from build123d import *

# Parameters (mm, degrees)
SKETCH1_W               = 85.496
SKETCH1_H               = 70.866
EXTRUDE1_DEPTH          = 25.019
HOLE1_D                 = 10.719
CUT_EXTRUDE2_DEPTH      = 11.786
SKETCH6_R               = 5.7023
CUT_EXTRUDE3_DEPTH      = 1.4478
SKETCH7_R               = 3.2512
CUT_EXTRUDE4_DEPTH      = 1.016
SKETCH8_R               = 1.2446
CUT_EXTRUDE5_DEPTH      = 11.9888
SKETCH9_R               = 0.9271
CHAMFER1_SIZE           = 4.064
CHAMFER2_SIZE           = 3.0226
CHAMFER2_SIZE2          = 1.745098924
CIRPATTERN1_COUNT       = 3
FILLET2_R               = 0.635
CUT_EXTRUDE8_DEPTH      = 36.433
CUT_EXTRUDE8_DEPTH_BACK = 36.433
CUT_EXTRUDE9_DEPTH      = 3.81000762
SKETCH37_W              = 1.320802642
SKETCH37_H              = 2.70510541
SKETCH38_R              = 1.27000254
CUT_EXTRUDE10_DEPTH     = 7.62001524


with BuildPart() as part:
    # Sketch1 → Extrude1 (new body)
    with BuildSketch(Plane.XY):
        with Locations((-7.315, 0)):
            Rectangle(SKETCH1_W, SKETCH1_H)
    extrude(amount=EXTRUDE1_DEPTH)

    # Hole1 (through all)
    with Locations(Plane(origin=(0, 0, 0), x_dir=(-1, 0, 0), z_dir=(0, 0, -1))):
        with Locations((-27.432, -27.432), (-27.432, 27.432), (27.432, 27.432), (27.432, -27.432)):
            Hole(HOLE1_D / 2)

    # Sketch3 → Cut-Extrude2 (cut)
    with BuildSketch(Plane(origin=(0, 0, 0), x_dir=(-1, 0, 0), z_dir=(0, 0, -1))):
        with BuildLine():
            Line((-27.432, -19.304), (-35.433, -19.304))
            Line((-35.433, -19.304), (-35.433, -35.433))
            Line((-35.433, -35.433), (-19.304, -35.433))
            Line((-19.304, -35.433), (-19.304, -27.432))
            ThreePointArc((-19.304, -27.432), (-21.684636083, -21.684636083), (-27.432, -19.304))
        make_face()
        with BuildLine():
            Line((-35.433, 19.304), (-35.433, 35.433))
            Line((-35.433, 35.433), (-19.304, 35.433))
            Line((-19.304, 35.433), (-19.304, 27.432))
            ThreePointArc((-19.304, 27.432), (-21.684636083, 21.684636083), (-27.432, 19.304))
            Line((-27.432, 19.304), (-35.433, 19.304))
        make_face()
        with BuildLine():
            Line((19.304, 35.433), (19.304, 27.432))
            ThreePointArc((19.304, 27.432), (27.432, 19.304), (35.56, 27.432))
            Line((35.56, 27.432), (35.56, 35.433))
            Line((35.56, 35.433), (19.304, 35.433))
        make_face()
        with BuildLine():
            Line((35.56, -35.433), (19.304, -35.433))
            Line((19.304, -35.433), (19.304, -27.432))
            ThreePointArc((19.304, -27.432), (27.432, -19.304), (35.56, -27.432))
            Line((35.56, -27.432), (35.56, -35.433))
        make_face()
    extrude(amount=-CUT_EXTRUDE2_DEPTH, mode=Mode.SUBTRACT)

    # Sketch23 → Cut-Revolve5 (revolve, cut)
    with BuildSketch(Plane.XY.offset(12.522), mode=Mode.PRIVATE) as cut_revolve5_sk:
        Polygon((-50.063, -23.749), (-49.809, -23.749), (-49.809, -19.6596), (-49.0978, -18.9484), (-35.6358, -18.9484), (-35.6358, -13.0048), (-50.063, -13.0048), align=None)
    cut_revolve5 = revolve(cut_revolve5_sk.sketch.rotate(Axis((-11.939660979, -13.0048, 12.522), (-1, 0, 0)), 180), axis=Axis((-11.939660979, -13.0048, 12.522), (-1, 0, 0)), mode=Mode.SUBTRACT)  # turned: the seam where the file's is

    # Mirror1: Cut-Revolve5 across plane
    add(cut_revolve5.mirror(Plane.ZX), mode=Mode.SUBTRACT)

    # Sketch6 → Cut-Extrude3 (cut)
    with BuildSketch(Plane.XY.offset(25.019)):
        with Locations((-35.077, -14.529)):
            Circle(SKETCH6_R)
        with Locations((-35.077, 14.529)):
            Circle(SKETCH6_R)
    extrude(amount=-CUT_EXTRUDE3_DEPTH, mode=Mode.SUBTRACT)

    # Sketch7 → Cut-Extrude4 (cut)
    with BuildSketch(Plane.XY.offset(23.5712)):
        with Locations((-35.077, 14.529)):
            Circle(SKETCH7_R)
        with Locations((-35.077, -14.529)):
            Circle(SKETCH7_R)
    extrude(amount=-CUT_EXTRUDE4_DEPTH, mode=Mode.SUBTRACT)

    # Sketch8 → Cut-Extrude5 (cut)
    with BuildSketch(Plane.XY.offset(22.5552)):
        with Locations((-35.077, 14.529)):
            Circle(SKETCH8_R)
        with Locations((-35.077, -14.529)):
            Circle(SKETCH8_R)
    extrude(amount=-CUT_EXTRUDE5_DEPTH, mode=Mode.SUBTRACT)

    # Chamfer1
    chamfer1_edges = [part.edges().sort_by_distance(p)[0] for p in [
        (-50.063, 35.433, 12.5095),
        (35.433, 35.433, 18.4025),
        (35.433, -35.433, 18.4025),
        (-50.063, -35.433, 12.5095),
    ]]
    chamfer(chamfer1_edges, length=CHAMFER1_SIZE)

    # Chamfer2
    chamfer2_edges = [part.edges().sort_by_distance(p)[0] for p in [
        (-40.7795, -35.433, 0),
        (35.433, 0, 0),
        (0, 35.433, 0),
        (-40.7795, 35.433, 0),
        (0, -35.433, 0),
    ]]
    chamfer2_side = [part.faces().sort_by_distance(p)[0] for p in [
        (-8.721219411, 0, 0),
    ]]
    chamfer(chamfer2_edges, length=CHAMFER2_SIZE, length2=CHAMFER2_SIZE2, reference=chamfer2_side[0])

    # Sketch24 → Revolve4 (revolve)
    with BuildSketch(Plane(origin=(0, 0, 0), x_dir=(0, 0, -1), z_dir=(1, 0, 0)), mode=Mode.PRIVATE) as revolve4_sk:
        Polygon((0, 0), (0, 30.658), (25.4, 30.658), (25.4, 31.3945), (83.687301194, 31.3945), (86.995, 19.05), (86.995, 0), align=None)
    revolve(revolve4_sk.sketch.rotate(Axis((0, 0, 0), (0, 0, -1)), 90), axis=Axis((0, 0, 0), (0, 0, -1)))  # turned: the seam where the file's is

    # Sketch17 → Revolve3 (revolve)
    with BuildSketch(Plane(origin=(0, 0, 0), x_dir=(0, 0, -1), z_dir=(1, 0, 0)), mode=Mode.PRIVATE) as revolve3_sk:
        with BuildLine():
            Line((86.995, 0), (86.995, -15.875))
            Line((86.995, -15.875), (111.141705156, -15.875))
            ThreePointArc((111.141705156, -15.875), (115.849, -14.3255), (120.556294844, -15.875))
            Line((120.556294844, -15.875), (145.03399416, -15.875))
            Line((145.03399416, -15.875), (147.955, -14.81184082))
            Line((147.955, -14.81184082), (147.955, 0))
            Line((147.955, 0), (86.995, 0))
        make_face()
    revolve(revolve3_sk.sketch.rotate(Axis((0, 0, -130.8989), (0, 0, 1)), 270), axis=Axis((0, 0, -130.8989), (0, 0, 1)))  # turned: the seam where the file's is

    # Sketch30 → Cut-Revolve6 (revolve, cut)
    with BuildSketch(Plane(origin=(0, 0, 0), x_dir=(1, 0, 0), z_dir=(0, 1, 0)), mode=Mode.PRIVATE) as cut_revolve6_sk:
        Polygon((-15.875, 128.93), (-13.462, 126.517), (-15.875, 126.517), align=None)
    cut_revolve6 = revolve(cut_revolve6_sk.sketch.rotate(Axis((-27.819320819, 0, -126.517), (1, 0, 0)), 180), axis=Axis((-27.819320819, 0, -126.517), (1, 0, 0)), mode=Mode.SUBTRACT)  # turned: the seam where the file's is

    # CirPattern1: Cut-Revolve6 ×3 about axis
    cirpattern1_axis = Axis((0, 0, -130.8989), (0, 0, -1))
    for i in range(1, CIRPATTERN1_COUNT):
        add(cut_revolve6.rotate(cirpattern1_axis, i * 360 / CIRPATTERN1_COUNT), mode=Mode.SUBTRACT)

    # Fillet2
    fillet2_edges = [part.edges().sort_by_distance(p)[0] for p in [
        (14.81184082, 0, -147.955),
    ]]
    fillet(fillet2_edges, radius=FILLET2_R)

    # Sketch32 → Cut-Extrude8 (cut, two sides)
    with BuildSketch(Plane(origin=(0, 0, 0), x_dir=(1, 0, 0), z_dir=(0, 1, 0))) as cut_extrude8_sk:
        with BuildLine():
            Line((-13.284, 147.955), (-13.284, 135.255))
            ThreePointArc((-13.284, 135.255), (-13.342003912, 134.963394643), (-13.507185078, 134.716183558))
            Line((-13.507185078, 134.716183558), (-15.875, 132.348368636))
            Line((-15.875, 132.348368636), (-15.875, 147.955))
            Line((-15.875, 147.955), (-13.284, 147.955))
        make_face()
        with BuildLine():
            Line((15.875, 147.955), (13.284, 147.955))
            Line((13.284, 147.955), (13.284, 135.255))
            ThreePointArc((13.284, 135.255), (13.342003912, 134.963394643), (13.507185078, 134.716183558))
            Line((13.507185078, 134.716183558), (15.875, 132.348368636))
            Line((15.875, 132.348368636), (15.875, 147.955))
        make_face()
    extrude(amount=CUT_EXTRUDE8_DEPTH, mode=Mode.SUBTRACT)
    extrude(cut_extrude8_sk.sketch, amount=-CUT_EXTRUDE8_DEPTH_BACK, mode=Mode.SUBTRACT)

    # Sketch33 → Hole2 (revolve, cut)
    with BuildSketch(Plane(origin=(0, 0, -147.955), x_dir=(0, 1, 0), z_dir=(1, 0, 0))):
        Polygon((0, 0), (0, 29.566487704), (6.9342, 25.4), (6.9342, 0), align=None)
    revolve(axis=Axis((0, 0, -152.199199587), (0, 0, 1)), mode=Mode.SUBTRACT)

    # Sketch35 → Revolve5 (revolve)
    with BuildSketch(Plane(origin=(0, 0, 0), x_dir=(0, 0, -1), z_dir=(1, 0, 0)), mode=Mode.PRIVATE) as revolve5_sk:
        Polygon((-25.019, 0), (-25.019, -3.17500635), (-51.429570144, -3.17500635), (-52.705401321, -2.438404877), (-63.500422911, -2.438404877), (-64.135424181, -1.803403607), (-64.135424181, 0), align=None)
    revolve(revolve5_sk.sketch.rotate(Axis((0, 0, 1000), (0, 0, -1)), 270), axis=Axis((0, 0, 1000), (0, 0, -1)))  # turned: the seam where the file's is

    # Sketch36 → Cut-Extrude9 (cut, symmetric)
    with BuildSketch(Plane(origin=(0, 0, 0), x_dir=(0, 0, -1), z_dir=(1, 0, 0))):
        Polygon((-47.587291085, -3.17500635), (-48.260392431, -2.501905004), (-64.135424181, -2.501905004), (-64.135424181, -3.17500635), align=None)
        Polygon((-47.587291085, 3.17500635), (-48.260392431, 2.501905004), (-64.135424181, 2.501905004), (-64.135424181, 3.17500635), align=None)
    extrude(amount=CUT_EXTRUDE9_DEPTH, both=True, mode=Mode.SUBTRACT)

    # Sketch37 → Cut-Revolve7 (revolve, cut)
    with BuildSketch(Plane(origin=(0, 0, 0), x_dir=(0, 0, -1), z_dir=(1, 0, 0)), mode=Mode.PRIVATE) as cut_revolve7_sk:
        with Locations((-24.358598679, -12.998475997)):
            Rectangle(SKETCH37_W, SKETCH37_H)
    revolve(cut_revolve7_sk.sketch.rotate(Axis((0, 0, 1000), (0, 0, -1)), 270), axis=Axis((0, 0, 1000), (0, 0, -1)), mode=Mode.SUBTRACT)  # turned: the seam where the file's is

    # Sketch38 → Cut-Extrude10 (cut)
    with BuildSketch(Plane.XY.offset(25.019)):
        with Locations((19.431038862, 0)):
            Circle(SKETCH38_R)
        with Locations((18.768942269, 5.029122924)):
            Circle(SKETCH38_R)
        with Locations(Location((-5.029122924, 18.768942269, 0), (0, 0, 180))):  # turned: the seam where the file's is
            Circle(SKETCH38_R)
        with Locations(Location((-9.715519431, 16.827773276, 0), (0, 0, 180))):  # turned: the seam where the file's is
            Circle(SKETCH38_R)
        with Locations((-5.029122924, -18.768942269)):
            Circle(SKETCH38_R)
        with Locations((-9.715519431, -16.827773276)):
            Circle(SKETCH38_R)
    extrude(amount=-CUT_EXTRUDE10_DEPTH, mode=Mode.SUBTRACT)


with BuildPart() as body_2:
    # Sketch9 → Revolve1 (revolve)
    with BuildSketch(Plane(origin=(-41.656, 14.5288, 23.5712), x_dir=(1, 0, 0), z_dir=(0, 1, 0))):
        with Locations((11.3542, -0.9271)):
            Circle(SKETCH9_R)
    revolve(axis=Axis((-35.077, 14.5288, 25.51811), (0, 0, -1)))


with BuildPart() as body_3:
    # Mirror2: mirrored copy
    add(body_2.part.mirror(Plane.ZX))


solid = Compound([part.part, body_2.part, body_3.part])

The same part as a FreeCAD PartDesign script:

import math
import FreeCAD as App
import Part
import Sketcher
Q = App.Units.Quantity


def edges_at(feature, points):
    """Names of the edges that pass closest to the given points."""
    edges = feature.Shape.Edges
    near = lambda p: min(range(len(edges)), key=lambda i: edges[i].distToShape(Part.Vertex(*p))[0])
    return sorted({f"Edge{near(p) + 1}" for p in points})

doc = App.newDocument("Part")
params = doc.addObject("Spreadsheet::Sheet", "Params")
for row, (alias, value) in enumerate([
    ("sketch1_height", "2.79 in"),
    ("pad1_length", "0.985 in"),
    ("hole_diameter", "10.719 mm"),
    ("sketch3_radius", "0.32 in"),
    ("sketch3_width", "0.315 in"),
    ("pocket1_length", "11.786 mm"),
    ("sketch4_width", "0.01 in"),
    ("sketch4_width2", "0.53 in"),
    ("sketch4_width3", "0.568 in"),
    ("sketch4_height", "0.161 in"),
    ("sketch4_height2", "0.234 in"),
    ("groove_angle", "360 deg"),
    ("sketch5_diameter", "0.449 in"),
    ("pocket2_length", "0.057 in"),
    ("sketch6_diameter", "0.256 in"),
    ("pocket3_length", "0.04 in"),
    ("sketch7_diameter", "0.098 in"),
    ("pocket4_length", "0.472 in"),
    ("chamfer_size", "0.16 in"),
    ("chamfer2_size", "0.119 in"),
    ("chamfer2_size2", "1.745099 mm"),
    ("sketch8_height", "1 in"),
    ("sketch8_width", "0.75 in"),
    ("sketch8_height2", "3.425 in"),
    ("revolution_angle", "360 deg"),
    ("sketch9_height", "2.4 in"),
    ("sketch9_width", "0.625 in"),
    ("revolution2_angle", "360 deg"),
    ("sketch10_width", "0.095 in"),
    ("groove2_angle", "360 deg"),
    ("fillet_radius", "0.025 in"),
    ("sketch11_radius", "0.0300001 in"),
    ("sketch11_height", "0.5 in"),
    ("sketch12_height", "1 in"),
    ("sketch12_width", "0.273 in"),
    ("groove3_angle", "360 deg"),
    ("sketch13_width", "0.0710001 in"),
    ("sketch13_length", "0.0580001 in"),
    ("revolution3_angle", "360 deg"),
    ("pocket6_length", "7.620015 mm"),
    ("sketch15_height", "0.0520001 in"),
    ("groove4_angle", "360 deg"),
    ("sketch16_diameter", "0.1000002 in"),
    ("pocket7_length", "7.620015 mm"),
    ("sketch17_diameter", "0.073 in"),
    ("revolution4_angle", "360 deg"),
], start=1):
    params.set(f"A{row}", alias)
    params.set(f"B{row}", "=" + value)
    params.setAlias(f"B{row}", alias)

body = doc.addObject("PartDesign::Body", "Body")

# Sketch on XY plane
sketch1 = body.newObject("Sketcher::SketchObject", "Sketch")
sketch1.AttachmentSupport = (doc.getObject("XY_Plane"), [""])
sketch1.MapMode = "FlatFace"
sketch1.addGeometry([
    Part.LineSegment(App.Vector(-50.063, 35.433, 0), App.Vector(-50.063, -35.433, 0)),
    Part.LineSegment(App.Vector(-50.063, -35.433, 0), App.Vector(35.433, -35.433, 0)),
    Part.LineSegment(App.Vector(35.433, -35.433, 0), App.Vector(35.433, 35.433, 0)),
    Part.LineSegment(App.Vector(35.433, 35.433, 0), App.Vector(-50.063, 35.433, 0)),
], False)
sketch1.addConstraint([
    Sketcher.Constraint("Coincident", 0, 2, 1, 1),
    Sketcher.Constraint("Coincident", 1, 2, 2, 1),
    Sketcher.Constraint("Coincident", 2, 2, 3, 1),
    Sketcher.Constraint("Coincident", 3, 2, 0, 1),
    Sketcher.Constraint("Vertical", 0),
    Sketcher.Constraint("Horizontal", 1),
    Sketcher.Constraint("Vertical", 2),
    Sketcher.Constraint("Horizontal", 3),
    Sketcher.Constraint("DistanceY", 0, 2, 0, 1, Q("2.79 in")),
    Sketcher.Constraint("DistanceY", 0, 2, -1, 1, Q("1.395 in")),
    Sketcher.Constraint("DistanceX", -1, 1, 1, 2, Q("1.395 in")),
    Sketcher.Constraint("DistanceX", 1, 1, 1, 2, 85.496),
])
sketch1.setExpression("Constraints[8]", "Params.sketch1_height")
pad1 = body.newObject("PartDesign::Pad", "Pad")
pad1.Profile = sketch1
pad1.setExpression("Length", "Params.pad1_length")

# Sketch on XY plane
sketch2 = body.newObject("Sketcher::SketchObject", "Sketch001")
sketch2.AttachmentSupport = (doc.getObject("XY_Plane"), [""])
sketch2.MapMode = "FlatFace"
sketch2.addGeometry([
    Part.Circle(App.Vector(27.432, -27.432, 0), App.Vector(0, 0, 1), 5.3595),
    Part.Circle(App.Vector(27.432, 27.432, 0), App.Vector(0, 0, 1), 5.3595),
    Part.Circle(App.Vector(-27.432, 27.432, 0), App.Vector(0, 0, 1), 5.3595),
    Part.Circle(App.Vector(-27.432, -27.432, 0), App.Vector(0, 0, 1), 5.3595),
], False)
sketch2.addConstraint([
    Sketcher.Constraint("Equal", 0, 1),
    Sketcher.Constraint("Equal", 1, 2),
    Sketcher.Constraint("Equal", 2, 3),
    Sketcher.Constraint("Symmetric", 0, 3, 2, 3, -1, 1),
    Sketcher.Constraint("Symmetric", 1, 3, 3, 3, -1, 1),
    Sketcher.Constraint("Symmetric", 1, 3, 2, 3, -2),
    Sketcher.Constraint("Diameter", 0, 10.719),
    Sketcher.Constraint("DistanceX", -1, 1, 0, 3, Q("1.08 in")),
    Sketcher.Constraint("DistanceY", 0, 3, -1, 1, Q("1.08 in")),
])
doc.recompute()
hole = body.newObject("PartDesign::Hole", "Hole")
hole.Profile = sketch2
hole.ThreadType = "None"
hole.setExpression("Diameter", "Params.hole_diameter")
hole.DepthType = "ThroughAll"
hole.Reversed = True

# Sketch on XY plane
sketch3 = body.newObject("Sketcher::SketchObject", "Sketch002")
sketch3.AttachmentSupport = (doc.getObject("XY_Plane"), [""])
sketch3.MapMode = "FlatFace"
sketch3.addGeometry([
    Part.LineSegment(App.Vector(27.432, -19.304, 0), App.Vector(35.433, -19.304, 0)),  # 0
    Part.LineSegment(App.Vector(35.433, -19.304, 0), App.Vector(35.433, -35.433, 0)),  # 1
    Part.LineSegment(App.Vector(35.433, -35.433, 0), App.Vector(19.304, -35.433, 0)),  # 2
    Part.LineSegment(App.Vector(19.304, -35.433, 0), App.Vector(19.304, -27.432, 0)),  # 3
    Part.ArcOfCircle(Part.Circle(App.Vector(27.432, -27.432, 0), App.Vector(0, 0, 1), 8.128), math.radians(90), math.radians(180)),  # 4
    Part.LineSegment(App.Vector(35.433, 35.433, 0), App.Vector(35.433, 19.304, 0)),  # 5
    Part.LineSegment(App.Vector(35.433, 19.304, 0), App.Vector(27.432, 19.304, 0)),  # 6
    Part.ArcOfCircle(Part.Circle(App.Vector(27.432, 27.432, 0), App.Vector(0, 0, 1), 8.128), math.radians(-180), math.radians(-90)),  # 7
    Part.LineSegment(App.Vector(19.304, 27.432, 0), App.Vector(19.304, 35.433, 0)),  # 8
    Part.LineSegment(App.Vector(19.304, 35.433, 0), App.Vector(35.433, 35.433, 0)),  # 9
    Part.LineSegment(App.Vector(-19.304, 35.433, 0), App.Vector(-19.304, 27.432, 0)),  # 10
    Part.ArcOfCircle(Part.Circle(App.Vector(-27.432, 27.432, 0), App.Vector(0, 0, 1), 8.128), math.radians(180), math.radians(360)),  # 11
    Part.LineSegment(App.Vector(-35.56, 27.432, 0), App.Vector(-35.56, 35.433, 0)),  # 12
    Part.LineSegment(App.Vector(-35.56, 35.433, 0), App.Vector(-19.304, 35.433, 0)),  # 13
    Part.LineSegment(App.Vector(-19.304, -35.433, 0), App.Vector(-35.56, -35.433, 0)),  # 14
    Part.LineSegment(App.Vector(-35.56, -35.433, 0), App.Vector(-35.56, -27.432, 0)),  # 15
    Part.ArcOfCircle(Part.Circle(App.Vector(-27.432, -27.432, 0), App.Vector(0, 0, 1), 8.128), math.radians(0), math.radians(180)),  # 16
    Part.LineSegment(App.Vector(-19.304, -27.432, 0), App.Vector(-19.304, -35.433, 0)),  # 17
], False)
sketch3.addConstraint([
    Sketcher.Constraint("Coincident", 0, 2, 1, 1),
    Sketcher.Constraint("Coincident", 1, 2, 2, 1),
    Sketcher.Constraint("Coincident", 2, 2, 3, 1),
    Sketcher.Constraint("Tangent", 3, 2, 4, 2),
    Sketcher.Constraint("Tangent", 4, 1, 0, 1),
    Sketcher.Constraint("Coincident", 5, 2, 6, 1),
    Sketcher.Constraint("Tangent", 6, 2, 7, 2),
    Sketcher.Constraint("Tangent", 7, 1, 8, 1),
    Sketcher.Constraint("Coincident", 8, 2, 9, 1),
    Sketcher.Constraint("Coincident", 9, 2, 5, 1),
    Sketcher.Constraint("Tangent", 10, 2, 11, 2),
    Sketcher.Constraint("Tangent", 11, 1, 12, 1),
    Sketcher.Constraint("Coincident", 12, 2, 13, 1),
    Sketcher.Constraint("Coincident", 13, 2, 10, 1),
    Sketcher.Constraint("Coincident", 14, 2, 15, 1),
    Sketcher.Constraint("Tangent", 15, 2, 16, 2),
    Sketcher.Constraint("Tangent", 16, 1, 17, 1),
    Sketcher.Constraint("Coincident", 17, 2, 14, 1),
    Sketcher.Constraint("Horizontal", 0),
    Sketcher.Constraint("Vertical", 1),
    Sketcher.Constraint("Horizontal", 2),
    Sketcher.Constraint("Vertical", 3),
    Sketcher.Constraint("Vertical", 5),
    Sketcher.Constraint("Horizontal", 6),
    Sketcher.Constraint("Vertical", 8),
    Sketcher.Constraint("Horizontal", 9),
    Sketcher.Constraint("Vertical", 10),
    Sketcher.Constraint("Vertical", 12),
    Sketcher.Constraint("Horizontal", 13),
    Sketcher.Constraint("Horizontal", 14),
    Sketcher.Constraint("Vertical", 15),
    Sketcher.Constraint("Vertical", 17),
    Sketcher.Constraint("Equal", 4, 7),
    Sketcher.Constraint("Equal", 7, 11),
    Sketcher.Constraint("Equal", 11, 16),
    Sketcher.Constraint("Symmetric", 4, 3, 11, 3, -1, 1),
    Sketcher.Constraint("Symmetric", 7, 3, 16, 3, -1, 1),
    Sketcher.Constraint("Symmetric", 7, 3, 11, 3, -2),
    Sketcher.Constraint("Symmetric", 1, 2, 9, 2, -1),
    Sketcher.Constraint("Horizontal", 9, 2, 12, 2),
    Sketcher.Constraint("Horizontal", 2, 2, 14, 2),
    Sketcher.Constraint("Equal", 9, 1),
    Sketcher.Constraint("Radius", 4, Q("0.32 in")),
    Sketcher.Constraint("DistanceX", 11, 1, -1, 1, Q("1.4 in")),
    Sketcher.Constraint("DistanceX", 0, 1, 0, 2, Q("0.315 in")),
    Sketcher.Constraint("DistanceY", 4, 3, -1, 1, Q("1.08 in")),
])
sketch3.setExpression("Constraints[42]", "Params.sketch3_radius")
sketch3.setExpression("Constraints[44]", "Params.sketch3_width")
pocket1 = body.newObject("PartDesign::Pocket", "Pocket")
pocket1.Profile = sketch3
pocket1.setExpression("Length", "Params.pocket1_length")
pocket1.Reversed = True

# Sketch on XY plane
sketch4 = body.newObject("Sketcher::SketchObject", "Sketch003")
sketch4.AttachmentSupport = (doc.getObject("XY_Plane"), [""])
sketch4.MapMode = "FlatFace"
sketch4.AttachmentOffset = App.Placement(App.Vector(0, 0, 12.522), App.Rotation())
sketch4.addGeometry([
    Part.LineSegment(App.Vector(-50.063, -23.749, 0), App.Vector(-49.809, -23.749, 0)),  # 0
    Part.LineSegment(App.Vector(-49.809, -23.749, 0), App.Vector(-49.809, -19.6596, 0)),  # 1
    Part.LineSegment(App.Vector(-49.809, -19.6596, 0), App.Vector(-49.0978, -18.9484, 0)),  # 2
    Part.LineSegment(App.Vector(-49.0978, -18.9484, 0), App.Vector(-35.6358, -18.9484, 0)),  # 3
    Part.LineSegment(App.Vector(-35.6358, -18.9484, 0), App.Vector(-35.6358, -13.0048, 0)),  # 4
    Part.LineSegment(App.Vector(-35.6358, -13.0048, 0), App.Vector(-50.063, -13.0048, 0)),  # 5
    Part.LineSegment(App.Vector(-50.063, -13.0048, 0), App.Vector(-50.063, -23.749, 0)),  # 6
], False)
sketch4.addGeometry(Part.LineSegment(App.Vector(-35.6358, -13.0048, 0), App.Vector(-50.063, -13.0048, 0)), True)  # axis
sketch4.addConstraint([
    Sketcher.Constraint("Coincident", 0, 2, 1, 1),
    Sketcher.Constraint("Coincident", 1, 2, 2, 1),
    Sketcher.Constraint("Coincident", 2, 2, 3, 1),
    Sketcher.Constraint("Coincident", 3, 2, 4, 1),
    Sketcher.Constraint("Coincident", 4, 2, 5, 1),
    Sketcher.Constraint("Coincident", 5, 2, 6, 1),
    Sketcher.Constraint("Coincident", 6, 2, 0, 1),
    Sketcher.Constraint("Horizontal", 0),
    Sketcher.Constraint("Vertical", 1),
    Sketcher.Constraint("Horizontal", 3),
    Sketcher.Constraint("Vertical", 4),
    Sketcher.Constraint("Horizontal", 5),
    Sketcher.Constraint("Vertical", 6),
    Sketcher.Constraint("Horizontal", 7),
    Sketcher.Constraint("Coincident", 7, 1, 4, 2),
    Sketcher.Constraint("Vertical", 6, 2, 7, 2),
    Sketcher.Constraint("Angle", 2, Q("45 deg")),
    Sketcher.Constraint("DistanceX", 0, 1, 0, 2, Q("0.01 in")),
    Sketcher.Constraint("DistanceX", 3, 1, 3, 2, Q("0.53 in")),
    Sketcher.Constraint("DistanceX", 5, 2, 5, 1, Q("0.568 in")),
    Sketcher.Constraint("DistanceY", 1, 1, 1, 2, Q("0.161 in")),
    Sketcher.Constraint("DistanceY", 4, 1, 4, 2, Q("0.234 in")),
    Sketcher.Constraint("DistanceY", 0, 2, -1, 1, Q("0.935 in")),
    Sketcher.Constraint("DistanceX", 0, 2, -1, 1, 49.809),
])
sketch4.setExpression("Constraints[17]", "Params.sketch4_width")
sketch4.setExpression("Constraints[18]", "Params.sketch4_width2")
sketch4.setExpression("Constraints[19]", "Params.sketch4_width3")
sketch4.setExpression("Constraints[20]", "Params.sketch4_height")
sketch4.setExpression("Constraints[21]", "Params.sketch4_height2")
groove = body.newObject("PartDesign::Groove", "Groove")
groove.Profile = sketch4
groove.ReferenceAxis = (sketch4, ["Axis0"])
groove.setExpression("Angle", "Params.groove_angle")
doc.recompute()

mirrored = body.newObject("PartDesign::Mirrored", "Mirrored")
mirrored.Originals = [groove]
mirrored.MirrorPlane = (doc.getObject("XZ_Plane"), [""])
body.Tip = mirrored

# Sketch on XY plane
sketch5 = body.newObject("Sketcher::SketchObject", "Sketch004")
sketch5.AttachmentSupport = (doc.getObject("XY_Plane"), [""])
sketch5.MapMode = "FlatFace"
sketch5.AttachmentOffset = App.Placement(App.Vector(0, 0, 0.985 * 25.4), App.Rotation())
sketch5.addGeometry([
    Part.Circle(App.Vector(-35.077, -14.529, 0), App.Vector(0, 0, 1), 5.7023),
    Part.Circle(App.Vector(-35.077, 14.529, 0), App.Vector(0, 0, 1), 5.7023),
], False)
sketch5.addConstraint([
    Sketcher.Constraint("Equal", 0, 1),
    Sketcher.Constraint("Symmetric", 0, 3, 1, 3, -1),
    Sketcher.Constraint("Diameter", 0, Q("0.449 in")),
    Sketcher.Constraint("DistanceX", 0, 3, -1, 1, 35.077),
    Sketcher.Constraint("DistanceY", 0, 3, -1, 1, 14.529),
])
sketch5.setExpression("Constraints[2]", "Params.sketch5_diameter")
pocket2 = body.newObject("PartDesign::Pocket", "Pocket001")
pocket2.Profile = sketch5
pocket2.setExpression("Length", "Params.pocket2_length")

# Sketch on XY plane
sketch6 = body.newObject("Sketcher::SketchObject", "Sketch005")
sketch6.AttachmentSupport = (doc.getObject("XY_Plane"), [""])
sketch6.MapMode = "FlatFace"
sketch6.AttachmentOffset = App.Placement(App.Vector(0, 0, 0.928 * 25.4), App.Rotation())
sketch6.addGeometry([
    Part.Circle(App.Vector(-35.077, 14.529, 0), App.Vector(0, 0, 1), 3.2512),
    Part.Circle(App.Vector(-35.077, -14.529, 0), App.Vector(0, 0, 1), 3.2512),
], False)
sketch6.addConstraint([
    Sketcher.Constraint("Equal", 0, 1),
    Sketcher.Constraint("Symmetric", 0, 3, 1, 3, -1),
    Sketcher.Constraint("Diameter", 0, Q("0.256 in")),
    Sketcher.Constraint("DistanceX", 0, 3, -1, 1, 35.077),
    Sketcher.Constraint("DistanceY", -1, 1, 0, 3, 14.529),
])
sketch6.setExpression("Constraints[2]", "Params.sketch6_diameter")
pocket3 = body.newObject("PartDesign::Pocket", "Pocket002")
pocket3.Profile = sketch6
pocket3.setExpression("Length", "Params.pocket3_length")

# Sketch on XY plane
sketch7 = body.newObject("Sketcher::SketchObject", "Sketch006")
sketch7.AttachmentSupport = (doc.getObject("XY_Plane"), [""])
sketch7.MapMode = "FlatFace"
sketch7.AttachmentOffset = App.Placement(App.Vector(0, 0, 0.888 * 25.4), App.Rotation())
sketch7.addGeometry([
    Part.Circle(App.Vector(-35.077, 14.529, 0), App.Vector(0, 0, 1), 1.2446),
    Part.Circle(App.Vector(-35.077, -14.529, 0), App.Vector(0, 0, 1), 1.2446),
], False)
sketch7.addConstraint([
    Sketcher.Constraint("Equal", 0, 1),
    Sketcher.Constraint("Symmetric", 0, 3, 1, 3, -1),
    Sketcher.Constraint("Diameter", 0, Q("0.098 in")),
    Sketcher.Constraint("DistanceX", 0, 3, -1, 1, 35.077),
    Sketcher.Constraint("DistanceY", -1, 1, 0, 3, 14.529),
])
sketch7.setExpression("Constraints[2]", "Params.sketch7_diameter")
pocket4 = body.newObject("PartDesign::Pocket", "Pocket003")
pocket4.Profile = sketch7
pocket4.setExpression("Length", "Params.pocket4_length")
doc.recompute()

chamfer = body.newObject("PartDesign::Chamfer", "Chamfer")
chamfer.Base = (pocket4, edges_at(pocket4, [
    (-50.063, 35.433, 12.509),
    (35.433, 35.433, 18.402),
    (35.433, -35.433, 18.402),
    (-50.063, -35.433, 12.509),
]))
chamfer.setExpression("Size", "Params.chamfer_size")
doc.recompute()

chamfer2 = body.newObject("PartDesign::Chamfer", "Chamfer001")
chamfer2.Base = (chamfer, edges_at(chamfer, [
    (-40.779, -35.433, 0),
    (35.433, 0, 0),
    (0, 35.433, 0),
    (-40.779, 35.433, 0),
    (0, -35.433, 0),
]))
chamfer2.ChamferType = "Two distances"
chamfer2.setExpression("Size", "Params.chamfer2_size")
chamfer2.setExpression("Size2", "Params.chamfer2_size2")

# Sketch on YZ plane
sketch8 = body.newObject("Sketcher::SketchObject", "Sketch007")
sketch8.AttachmentSupport = (doc.getObject("YZ_Plane"), [""])
sketch8.MapMode = "FlatFace"
sketch8.addGeometry([
    Part.LineSegment(App.Vector(30.658, 0, 0), App.Vector(0, 0, 0)),  # 0
    Part.LineSegment(App.Vector(0, 0, 0), App.Vector(0, -86.995, 0)),  # 1
    Part.LineSegment(App.Vector(0, -86.995, 0), App.Vector(19.05, -86.995, 0)),  # 2
    Part.LineSegment(App.Vector(19.05, -86.995, 0), App.Vector(31.3945, -83.687301, 0)),  # 3
    Part.LineSegment(App.Vector(31.3945, -83.687301, 0), App.Vector(31.3945, -25.4, 0)),  # 4
    Part.LineSegment(App.Vector(31.3945, -25.4, 0), App.Vector(30.658, -25.4, 0)),  # 5
    Part.LineSegment(App.Vector(30.658, -25.4, 0), App.Vector(30.658, 0, 0)),  # 6
], False)
sketch8.addConstraint([
    Sketcher.Constraint("Coincident", 0, 2, 1, 1),
    Sketcher.Constraint("Coincident", 1, 2, 2, 1),
    Sketcher.Constraint("Coincident", 2, 2, 3, 1),
    Sketcher.Constraint("Coincident", 3, 2, 4, 1),
    Sketcher.Constraint("Coincident", 4, 2, 5, 1),
    Sketcher.Constraint("Coincident", 5, 2, 6, 1),
    Sketcher.Constraint("Coincident", 6, 2, 0, 1),
    Sketcher.Constraint("Horizontal", 0),
    Sketcher.Constraint("Vertical", 1),
    Sketcher.Constraint("Horizontal", 2),
    Sketcher.Constraint("Vertical", 4),
    Sketcher.Constraint("Horizontal", 5),
    Sketcher.Constraint("Vertical", 6),
    Sketcher.Constraint("Coincident", 0, 2, -1, 1),
    Sketcher.Constraint("DistanceY", 6, 1, 6, 2, Q("1 in")),
    Sketcher.Constraint("Angle", 3, Q("15 deg")),
    Sketcher.Constraint("DistanceX", 2, 1, 2, 2, Q("0.75 in")),
    Sketcher.Constraint("DistanceY", 1, 2, 1, 1, Q("3.425 in")),
    Sketcher.Constraint("DistanceX", 0, 2, 0, 1, 30.658),
    Sketcher.Constraint("DistanceX", 5, 2, 5, 1, 0.7365),
])
sketch8.setExpression("Constraints[14]", "Params.sketch8_height")
sketch8.setExpression("Constraints[16]", "Params.sketch8_width")
sketch8.setExpression("Constraints[17]", "Params.sketch8_height2")
revolution = body.newObject("PartDesign::Revolution", "Revolution")
revolution.Profile = sketch8
revolution.ReferenceAxis = (sketch8, ["V_Axis"])
revolution.setExpression("Angle", "Params.revolution_angle")

# Sketch on YZ plane
sketch9 = body.newObject("Sketcher::SketchObject", "Sketch008")
sketch9.AttachmentSupport = (doc.getObject("YZ_Plane"), [""])
sketch9.MapMode = "FlatFace"
sketch9.addGeometry([
    Part.LineSegment(App.Vector(0, -86.995, 0), App.Vector(-15.875, -86.995, 0)),  # 0
    Part.LineSegment(App.Vector(-15.875, -86.995, 0), App.Vector(-15.875, -111.141705, 0)),  # 1
    Part.ArcOfCircle(Part.Circle(App.Vector(-22.2505, -115.849, 0), App.Vector(0, 0, 1), 7.925), math.radians(-36.439983), math.radians(36.439983)),  # 2
    Part.LineSegment(App.Vector(-15.875, -120.556295, 0), App.Vector(-15.875, -145.033994, 0)),  # 3
    Part.LineSegment(App.Vector(-15.875, -145.033994, 0), App.Vector(-14.811841, -147.955, 0)),  # 4
    Part.LineSegment(App.Vector(-14.811841, -147.955, 0), App.Vector(0, -147.955, 0)),  # 5
    Part.LineSegment(App.Vector(0, -147.955, 0), App.Vector(0, -86.995, 0)),  # 6
], False)
sketch9.addConstraint([
    Sketcher.Constraint("Coincident", 0, 2, 1, 1),
    Sketcher.Constraint("Coincident", 1, 2, 2, 2),
    Sketcher.Constraint("Coincident", 2, 1, 3, 1),
    Sketcher.Constraint("Coincident", 3, 2, 4, 1),
    Sketcher.Constraint("Coincident", 4, 2, 5, 1),
    Sketcher.Constraint("Coincident", 5, 2, 6, 1),
    Sketcher.Constraint("Coincident", 6, 2, 0, 1),
    Sketcher.Constraint("Horizontal", 0),
    Sketcher.Constraint("Vertical", 1),
    Sketcher.Constraint("Vertical", 3),
    Sketcher.Constraint("Horizontal", 5),
    Sketcher.Constraint("Vertical", 6),
    Sketcher.Constraint("PointOnObject", 5, 2, -2),
    Sketcher.Constraint("Vertical", 1, 2, 2, 1),
    Sketcher.Constraint("DistanceY", 6, 1, 6, 2, Q("2.4 in")),
    Sketcher.Constraint("Angle", 4, Q("-70 deg")),
    Sketcher.Constraint("DistanceX", 0, 2, 0, 1, Q("0.625 in")),
    Sketcher.Constraint("Radius", 2, 7.925),
    Sketcher.Constraint("DistanceY", 0, 2, -1, 1, Q("3.425 in")),
    Sketcher.Constraint("DistanceY", 3, 2, 3, 1, 24.477699),
    Sketcher.Constraint("DistanceX", 5, 1, 5, 2, 14.811841),
    Sketcher.Constraint("DistanceX", 2, 3, -1, 1, 22.2505),
])
sketch9.setExpression("Constraints[14]", "Params.sketch9_height")
sketch9.setExpression("Constraints[16]", "Params.sketch9_width")
revolution2 = body.newObject("PartDesign::Revolution", "Revolution001")
revolution2.Profile = sketch9
revolution2.ReferenceAxis = (sketch9, ["V_Axis"])
revolution2.setExpression("Angle", "Params.revolution2_angle")

# Sketch on XZ plane
sketch10 = body.newObject("Sketcher::SketchObject", "Sketch009")
sketch10.AttachmentSupport = (doc.getObject("XZ_Plane"), [""])
sketch10.MapMode = "FlatFace"
sketch10.addGeometry([
    Part.LineSegment(App.Vector(-13.462, -126.517, 0), App.Vector(-15.875, -128.93, 0)),
    Part.LineSegment(App.Vector(-15.875, -128.93, 0), App.Vector(-15.875, -126.517, 0)),
    Part.LineSegment(App.Vector(-15.875, -126.517, 0), App.Vector(-13.462, -126.517, 0)),
], False)
sketch10.addGeometry(Part.LineSegment(App.Vector(-15.875, -126.517, 0), App.Vector(-13.462, -126.517, 0)), True)  # axis
sketch10.addConstraint([
    Sketcher.Constraint("Coincident", 0, 2, 1, 1),
    Sketcher.Constraint("Coincident", 1, 2, 2, 1),
    Sketcher.Constraint("Coincident", 2, 2, 0, 1),
    Sketcher.Constraint("Vertical", 1),
    Sketcher.Constraint("Horizontal", 2),
    Sketcher.Constraint("Horizontal", 3),
    Sketcher.Constraint("Coincident", 3, 1, 1, 2),
    Sketcher.Constraint("Equal", 2, 3),
    Sketcher.Constraint("Equal", 3, 1),
    Sketcher.Constraint("DistanceX", 2, 1, 2, 2, Q("0.095 in")),
    Sketcher.Constraint("DistanceX", 2, 2, -1, 1, Q("0.53 in")),
    Sketcher.Constraint("DistanceY", 0, 2, -1, 1, 128.93),
])
sketch10.setExpression("Constraints[9]", "Params.sketch10_width")
groove2 = body.newObject("PartDesign::Groove", "Groove001")
groove2.Profile = sketch10
groove2.ReferenceAxis = (sketch10, ["Axis0"])
groove2.setExpression("Angle", "Params.groove2_angle")
doc.recompute()

polarpattern = body.newObject("PartDesign::PolarPattern", "PolarPattern")
polarpattern.Originals = [groove2]
polarpattern.Axis = (doc.getObject("Z_Axis"), [""])
polarpattern.Angle = 360
polarpattern.Occurrences = 3
body.Tip = polarpattern
doc.recompute()

fillet = body.newObject("PartDesign::Fillet", "Fillet")
fillet.Base = (polarpattern, edges_at(polarpattern, [(14.812, 0, -147.955)]))
fillet.setExpression("Radius", "Params.fillet_radius")

# Sketch on XZ plane
sketch11 = body.newObject("Sketcher::SketchObject", "Sketch010")
sketch11.AttachmentSupport = (doc.getObject("XZ_Plane"), [""])
sketch11.MapMode = "FlatFace"
sketch11.addGeometry([
    Part.LineSegment(App.Vector(-13.284, -135.255, 0), App.Vector(-13.284, -147.955, 0)),  # 0
    Part.LineSegment(App.Vector(-13.284, -147.955, 0), App.Vector(-15.875, -147.955, 0)),  # 1
    Part.LineSegment(App.Vector(-15.875, -147.955, 0), App.Vector(-15.875, -132.348369, 0)),  # 2
    Part.LineSegment(App.Vector(-15.875, -132.348369, 0), App.Vector(-13.507185, -134.716184, 0)),  # 3
    Part.ArcOfCircle(Part.Circle(App.Vector(-14.046002, -135.255, 0), App.Vector(0, 0, 1), 0.762002), math.radians(0), math.radians(45)),  # 4
    Part.LineSegment(App.Vector(15.875, -147.955, 0), App.Vector(13.284, -147.955, 0)),  # 5
    Part.LineSegment(App.Vector(13.284, -147.955, 0), App.Vector(13.284, -135.255, 0)),  # 6
    Part.ArcOfCircle(Part.Circle(App.Vector(14.046002, -135.255, 0), App.Vector(0, 0, 1), 0.762002), math.radians(135), math.radians(180)),  # 7
    Part.LineSegment(App.Vector(13.507185, -134.716184, 0), App.Vector(15.875, -132.348369, 0)),  # 8
    Part.LineSegment(App.Vector(15.875, -132.348369, 0), App.Vector(15.875, -147.955, 0)),  # 9
], False)
sketch11.addConstraint([
    Sketcher.Constraint("Coincident", 0, 2, 1, 1),
    Sketcher.Constraint("Coincident", 1, 2, 2, 1),
    Sketcher.Constraint("Coincident", 2, 2, 3, 1),
    Sketcher.Constraint("Tangent", 3, 2, 4, 2),
    Sketcher.Constraint("Tangent", 4, 1, 0, 1),
    Sketcher.Constraint("Coincident", 5, 2, 6, 1),
    Sketcher.Constraint("Tangent", 6, 2, 7, 2),
    Sketcher.Constraint("Tangent", 7, 1, 8, 1),
    Sketcher.Constraint("Coincident", 8, 2, 9, 1),
    Sketcher.Constraint("Coincident", 9, 2, 5, 1),
    Sketcher.Constraint("Vertical", 0),
    Sketcher.Constraint("Horizontal", 1),
    Sketcher.Constraint("Vertical", 2),
    Sketcher.Constraint("Horizontal", 5),
    Sketcher.Constraint("Vertical", 6),
    Sketcher.Constraint("Vertical", 9),
    Sketcher.Constraint("Equal", 4, 7),
    Sketcher.Constraint("Symmetric", 4, 3, 7, 3, -2),
    Sketcher.Constraint("Symmetric", 2, 2, 8, 2, -2),
    Sketcher.Constraint("Perpendicular", 3, 8),
    Sketcher.Constraint("Horizontal", 1, 2, 5, 2),
    Sketcher.Constraint("Radius", 4, Q("0.0300001 in")),
    Sketcher.Constraint("DistanceY", 0, 2, 0, 1, Q("0.5 in")),
    Sketcher.Constraint("DistanceY", 4, 3, -1, 1, Q("5.325 in")),
    Sketcher.Constraint("DistanceX", 1, 2, -1, 1, Q("0.625 in")),
    Sketcher.Constraint("DistanceX", 1, 2, 1, 1, 2.591),
])
sketch11.setExpression("Constraints[21]", "Params.sketch11_radius")
sketch11.setExpression("Constraints[22]", "Params.sketch11_height")
pocket5 = body.newObject("PartDesign::Pocket", "Pocket004")
pocket5.Profile = sketch11
pocket5.Type = "ThroughAll"
pocket5.Midplane = True

# Sketch on YZ plane
sketch12 = body.newObject("Sketcher::SketchObject", "Sketch011")
sketch12.AttachmentSupport = (doc.getObject("YZ_Plane"), [""])
sketch12.MapMode = "FlatFace"
sketch12.addGeometry([
    Part.LineSegment(App.Vector(0, -118.388512, 0), App.Vector(0, -147.955, 0)),
    Part.LineSegment(App.Vector(0, -147.955, 0), App.Vector(6.9342, -147.955, 0)),
    Part.LineSegment(App.Vector(6.9342, -147.955, 0), App.Vector(6.9342, -122.555, 0)),
    Part.LineSegment(App.Vector(6.9342, -122.555, 0), App.Vector(0, -118.388512, 0)),
], False)
sketch12.addConstraint([
    Sketcher.Constraint("Coincident", 0, 2, 1, 1),
    Sketcher.Constraint("Coincident", 1, 2, 2, 1),
    Sketcher.Constraint("Coincident", 2, 2, 3, 1),
    Sketcher.Constraint("Coincident", 3, 2, 0, 1),
    Sketcher.Constraint("Vertical", 0),
    Sketcher.Constraint("Horizontal", 1),
    Sketcher.Constraint("Vertical", 2),
    Sketcher.Constraint("PointOnObject", 0, 2, -2),
    Sketcher.Constraint("DistanceY", 2, 1, 2, 2, Q("1 in")),
    Sketcher.Constraint("Angle", 3, Q("149 deg")),
    Sketcher.Constraint("DistanceX", 1, 1, 1, 2, Q("0.273 in")),
    Sketcher.Constraint("DistanceY", 0, 2, -1, 1, Q("5.825 in")),
])
sketch12.setExpression("Constraints[8]", "Params.sketch12_height")
sketch12.setExpression("Constraints[10]", "Params.sketch12_width")
groove3 = body.newObject("PartDesign::Groove", "Groove002")
groove3.Profile = sketch12
groove3.ReferenceAxis = (sketch12, ["V_Axis"])
groove3.setExpression("Angle", "Params.groove3_angle")

# Sketch on YZ plane
sketch13 = body.newObject("Sketcher::SketchObject", "Sketch012")
sketch13.AttachmentSupport = (doc.getObject("YZ_Plane"), [""])
sketch13.MapMode = "FlatFace"
sketch13.addGeometry([
    Part.LineSegment(App.Vector(-3.175006, 25.019, 0), App.Vector(0, 25.019, 0)),  # 0
    Part.LineSegment(App.Vector(0, 25.019, 0), App.Vector(0, 64.135424, 0)),  # 1
    Part.LineSegment(App.Vector(0, 64.135424, 0), App.Vector(-1.803404, 64.135424, 0)),  # 2
    Part.LineSegment(App.Vector(-1.803404, 64.135424, 0), App.Vector(-2.438405, 63.500423, 0)),  # 3
    Part.LineSegment(App.Vector(-2.438405, 63.500423, 0), App.Vector(-2.438405, 52.705401, 0)),  # 4
    Part.LineSegment(App.Vector(-2.438405, 52.705401, 0), App.Vector(-3.175006, 51.42957, 0)),  # 5
    Part.LineSegment(App.Vector(-3.175006, 51.42957, 0), App.Vector(-3.175006, 25.019, 0)),  # 6
], False)
sketch13.addConstraint([
    Sketcher.Constraint("Coincident", 0, 2, 1, 1),
    Sketcher.Constraint("Coincident", 1, 2, 2, 1),
    Sketcher.Constraint("Coincident", 2, 2, 3, 1),
    Sketcher.Constraint("Coincident", 3, 2, 4, 1),
    Sketcher.Constraint("Coincident", 4, 2, 5, 1),
    Sketcher.Constraint("Coincident", 5, 2, 6, 1),
    Sketcher.Constraint("Coincident", 6, 2, 0, 1),
    Sketcher.Constraint("Horizontal", 0),
    Sketcher.Constraint("Vertical", 1),
    Sketcher.Constraint("Horizontal", 2),
    Sketcher.Constraint("Vertical", 4),
    Sketcher.Constraint("Vertical", 6),
    Sketcher.Constraint("PointOnObject", 0, 2, -2),
    Sketcher.Constraint("Angle", 3, Q("-135 deg")),
    Sketcher.Constraint("Angle", 5, Q("-120 deg")),
    Sketcher.Constraint("DistanceX", 2, 2, 2, 1, Q("0.0710001 in")),
    Sketcher.Constraint("Distance", 5, Q("0.0580001 in")),
    Sketcher.Constraint("DistanceY", -1, 1, 0, 2, Q("0.985 in")),
    Sketcher.Constraint("DistanceX", 3, 2, -1, 1, Q("0.0960002 in")),
    Sketcher.Constraint("DistanceY", 4, 2, 4, 1, 10.795022),
    Sketcher.Constraint("DistanceY", 6, 2, 6, 1, 26.41057),
])
sketch13.setExpression("Constraints[15]", "Params.sketch13_width")
sketch13.setExpression("Constraints[16]", "Params.sketch13_length")
revolution3 = body.newObject("PartDesign::Revolution", "Revolution002")
revolution3.Profile = sketch13
revolution3.ReferenceAxis = (sketch13, ["V_Axis"])
revolution3.setExpression("Angle", "Params.revolution3_angle")

# Sketch on YZ plane
sketch14 = body.newObject("Sketcher::SketchObject", "Sketch013")
sketch14.AttachmentSupport = (doc.getObject("YZ_Plane"), [""])
sketch14.MapMode = "FlatFace"
sketch14.addGeometry([
    Part.LineSegment(App.Vector(-3.175006, 47.587291, 0), App.Vector(-2.501905, 48.260392, 0)),  # 0
    Part.LineSegment(App.Vector(-2.501905, 48.260392, 0), App.Vector(-2.501905, 64.135424, 0)),  # 1
    Part.LineSegment(App.Vector(-2.501905, 64.135424, 0), App.Vector(-3.175006, 64.135424, 0)),  # 2
    Part.LineSegment(App.Vector(-3.175006, 64.135424, 0), App.Vector(-3.175006, 47.587291, 0)),  # 3
    Part.LineSegment(App.Vector(2.501905, 48.260392, 0), App.Vector(3.175006, 47.587291, 0)),  # 4
    Part.LineSegment(App.Vector(3.175006, 47.587291, 0), App.Vector(3.175006, 64.135424, 0)),  # 5
    Part.LineSegment(App.Vector(3.175006, 64.135424, 0), App.Vector(2.501905, 64.135424, 0)),  # 6
    Part.LineSegment(App.Vector(2.501905, 64.135424, 0), App.Vector(2.501905, 48.260392, 0)),  # 7
], False)
sketch14.addConstraint([
    Sketcher.Constraint("Coincident", 0, 2, 1, 1),
    Sketcher.Constraint("Coincident", 1, 2, 2, 1),
    Sketcher.Constraint("Coincident", 2, 2, 3, 1),
    Sketcher.Constraint("Coincident", 3, 2, 0, 1),
    Sketcher.Constraint("Coincident", 4, 2, 5, 1),
    Sketcher.Constraint("Coincident", 5, 2, 6, 1),
    Sketcher.Constraint("Coincident", 6, 2, 7, 1),
    Sketcher.Constraint("Coincident", 7, 2, 4, 1),
    Sketcher.Constraint("Vertical", 1),
    Sketcher.Constraint("Horizontal", 2),
    Sketcher.Constraint("Vertical", 3),
    Sketcher.Constraint("Vertical", 5),
    Sketcher.Constraint("Horizontal", 6),
    Sketcher.Constraint("Vertical", 7),
    Sketcher.Constraint("Symmetric", 3, 2, 4, 2, -2),
    Sketcher.Constraint("Symmetric", 1, 2, 6, 2, -2),
    Sketcher.Constraint("Perpendicular", 0, 4),
    Sketcher.Constraint("Horizontal", 0, 2, 7, 2),
    Sketcher.Constraint("DistanceX", 2, 2, 2, 1, Q("0.0265001 in")),
    Sketcher.Constraint("DistanceX", 0, 2, -1, 1, Q("0.0985002 in")),
    Sketcher.Constraint("DistanceY", 1, 1, 1, 2, 15.875032),
    Sketcher.Constraint("DistanceY", -1, 1, 3, 2, 47.587291),
])
pocket6 = body.newObject("PartDesign::Pocket", "Pocket005")
pocket6.Profile = sketch14
pocket6.setExpression("Length", "Params.pocket6_length")
pocket6.Midplane = True

# Sketch on YZ plane
sketch15 = body.newObject("Sketcher::SketchObject", "Sketch014")
sketch15.AttachmentSupport = (doc.getObject("YZ_Plane"), [""])
sketch15.MapMode = "FlatFace"
sketch15.addGeometry([
    Part.LineSegment(App.Vector(-11.645923, 25.019, 0), App.Vector(-14.351029, 25.019, 0)),
    Part.LineSegment(App.Vector(-14.351029, 25.019, 0), App.Vector(-14.351029, 23.698197, 0)),
    Part.LineSegment(App.Vector(-14.351029, 23.698197, 0), App.Vector(-11.645923, 23.698197, 0)),
    Part.LineSegment(App.Vector(-11.645923, 23.698197, 0), App.Vector(-11.645923, 25.019, 0)),
], False)
sketch15.addConstraint([
    Sketcher.Constraint("Coincident", 0, 2, 1, 1),
    Sketcher.Constraint("Coincident", 1, 2, 2, 1),
    Sketcher.Constraint("Coincident", 2, 2, 3, 1),
    Sketcher.Constraint("Coincident", 3, 2, 0, 1),
    Sketcher.Constraint("Horizontal", 0),
    Sketcher.Constraint("Vertical", 1),
    Sketcher.Constraint("Horizontal", 2),
    Sketcher.Constraint("Vertical", 3),
    Sketcher.Constraint("DistanceY", 1, 2, 1, 1, Q("0.0520001 in")),
    Sketcher.Constraint("DistanceY", -1, 1, 0, 2, Q("0.985 in")),
    Sketcher.Constraint("DistanceX", 0, 2, 0, 1, 2.705105),
    Sketcher.Constraint("DistanceX", 0, 2, -1, 1, 14.351029),
])
sketch15.setExpression("Constraints[8]", "Params.sketch15_height")
groove4 = body.newObject("PartDesign::Groove", "Groove003")
groove4.Profile = sketch15
groove4.ReferenceAxis = (sketch15, ["V_Axis"])
groove4.setExpression("Angle", "Params.groove4_angle")

# Sketch on XY plane
sketch16 = body.newObject("Sketcher::SketchObject", "Sketch015")
sketch16.AttachmentSupport = (doc.getObject("XY_Plane"), [""])
sketch16.MapMode = "FlatFace"
sketch16.AttachmentOffset = App.Placement(App.Vector(0, 0, 0.985 * 25.4), App.Rotation())
sketch16.addGeometry([
    Part.Circle(App.Vector(19.431039, 0, 0), App.Vector(0, 0, 1), 1.270003),  # 0
    Part.Circle(App.Vector(18.768942, 5.029123, 0), App.Vector(0, 0, 1), 1.270003),  # 1
    Part.Circle(App.Vector(-5.029123, 18.768942, 0), App.Vector(0, 0, 1), 1.270003),  # 2
    Part.Circle(App.Vector(-9.715519, 16.827773, 0), App.Vector(0, 0, 1), 1.270003),  # 3
    Part.Circle(App.Vector(-5.029123, -18.768942, 0), App.Vector(0, 0, 1), 1.270003),  # 4
    Part.Circle(App.Vector(-9.715519, -16.827773, 0), App.Vector(0, 0, 1), 1.270003),  # 5
], False)
sketch16.addConstraint([
    Sketcher.Constraint("Equal", 0, 1),
    Sketcher.Constraint("Equal", 1, 2),
    Sketcher.Constraint("Equal", 2, 3),
    Sketcher.Constraint("Equal", 3, 4),
    Sketcher.Constraint("Equal", 4, 5),
    Sketcher.Constraint("Symmetric", 2, 3, 4, 3, -1),
    Sketcher.Constraint("Symmetric", 3, 3, 5, 3, -1),
    Sketcher.Constraint("PointOnObject", 0, 3, -1),
    Sketcher.Constraint("Diameter", 0, Q("0.1000002 in")),
    Sketcher.Constraint("DistanceX", -1, 1, 0, 3, 19.431039),
    Sketcher.Constraint("DistanceX", 3, 3, -1, 1, 9.715519),
    Sketcher.Constraint("DistanceY", 1, 3, 2, 3, 13.739819),
    Sketcher.Constraint("DistanceX", 2, 3, 0, 3, 24.460162),
    Sketcher.Constraint("DistanceY", 3, 3, 2, 3, 1.941169),
    Sketcher.Constraint("DistanceX", 3, 3, 1, 3, 28.484462),
    Sketcher.Constraint("DistanceY", -1, 1, 1, 3, 5.029123),
])
sketch16.setExpression("Constraints[8]", "Params.sketch16_diameter")
pocket7 = body.newObject("PartDesign::Pocket", "Pocket006")
pocket7.Profile = sketch16
pocket7.setExpression("Length", "Params.pocket7_length")
body2 = doc.addObject("PartDesign::Body", "Body001")

# Sketch on XZ plane
sketch17 = body2.newObject("Sketcher::SketchObject", "Sketch016")
sketch17.AttachmentSupport = (doc.getObject("XZ_Plane001"), [""])
sketch17.MapMode = "FlatFace"
sketch17.AttachmentOffset = App.Placement(App.Vector(0, 0, -0.572 * 25.4), App.Rotation())
sketch17.addGeometry(Part.Circle(App.Vector(-30.3018, 24.4983, 0), App.Vector(0, 0, 1), 0.9271), False)
sketch17.addGeometry(Part.LineSegment(App.Vector(-35.077, 24.4983, 0), App.Vector(-35.077, 14.4983, 0)), True)  # axis
sketch17.addConstraint([
    Sketcher.Constraint("Vertical", 1),
    Sketcher.Constraint("Horizontal", 0, 3, 1, 1),
    Sketcher.Constraint("Diameter", 0, Q("0.073 in")),
    Sketcher.Constraint("DistanceX", 1, 1, 0, 3, Q("0.188 in")),
    Sketcher.Constraint("DistanceY", 1, 2, 1, 1, 10.0),
    Sketcher.Constraint("DistanceY", -1, 1, 0, 3, Q("0.9645 in")),
    Sketcher.Constraint("DistanceX", 0, 3, -1, 1, 30.3018),
])
sketch17.setExpression("Constraints[2]", "Params.sketch17_diameter")
revolution4 = body2.newObject("PartDesign::Revolution", "Revolution003")
revolution4.Profile = sketch17
revolution4.ReferenceAxis = (sketch17, ["Axis0"])
revolution4.setExpression("Angle", "Params.revolution4_angle")
body3 = doc.addObject("PartDesign::Body", "Body002")
doc.recompute()

mirroring = doc.addObject("Part::Mirroring", "Mirroring")
mirroring.Source = body2
mirroring.Base = App.Vector(0, 0, 0)
mirroring.Normal = App.Vector(0, 1, 0)
body3.BaseFeature = mirroring
doc.recompute()
mirroring.Visibility = False

doc.recompute()
